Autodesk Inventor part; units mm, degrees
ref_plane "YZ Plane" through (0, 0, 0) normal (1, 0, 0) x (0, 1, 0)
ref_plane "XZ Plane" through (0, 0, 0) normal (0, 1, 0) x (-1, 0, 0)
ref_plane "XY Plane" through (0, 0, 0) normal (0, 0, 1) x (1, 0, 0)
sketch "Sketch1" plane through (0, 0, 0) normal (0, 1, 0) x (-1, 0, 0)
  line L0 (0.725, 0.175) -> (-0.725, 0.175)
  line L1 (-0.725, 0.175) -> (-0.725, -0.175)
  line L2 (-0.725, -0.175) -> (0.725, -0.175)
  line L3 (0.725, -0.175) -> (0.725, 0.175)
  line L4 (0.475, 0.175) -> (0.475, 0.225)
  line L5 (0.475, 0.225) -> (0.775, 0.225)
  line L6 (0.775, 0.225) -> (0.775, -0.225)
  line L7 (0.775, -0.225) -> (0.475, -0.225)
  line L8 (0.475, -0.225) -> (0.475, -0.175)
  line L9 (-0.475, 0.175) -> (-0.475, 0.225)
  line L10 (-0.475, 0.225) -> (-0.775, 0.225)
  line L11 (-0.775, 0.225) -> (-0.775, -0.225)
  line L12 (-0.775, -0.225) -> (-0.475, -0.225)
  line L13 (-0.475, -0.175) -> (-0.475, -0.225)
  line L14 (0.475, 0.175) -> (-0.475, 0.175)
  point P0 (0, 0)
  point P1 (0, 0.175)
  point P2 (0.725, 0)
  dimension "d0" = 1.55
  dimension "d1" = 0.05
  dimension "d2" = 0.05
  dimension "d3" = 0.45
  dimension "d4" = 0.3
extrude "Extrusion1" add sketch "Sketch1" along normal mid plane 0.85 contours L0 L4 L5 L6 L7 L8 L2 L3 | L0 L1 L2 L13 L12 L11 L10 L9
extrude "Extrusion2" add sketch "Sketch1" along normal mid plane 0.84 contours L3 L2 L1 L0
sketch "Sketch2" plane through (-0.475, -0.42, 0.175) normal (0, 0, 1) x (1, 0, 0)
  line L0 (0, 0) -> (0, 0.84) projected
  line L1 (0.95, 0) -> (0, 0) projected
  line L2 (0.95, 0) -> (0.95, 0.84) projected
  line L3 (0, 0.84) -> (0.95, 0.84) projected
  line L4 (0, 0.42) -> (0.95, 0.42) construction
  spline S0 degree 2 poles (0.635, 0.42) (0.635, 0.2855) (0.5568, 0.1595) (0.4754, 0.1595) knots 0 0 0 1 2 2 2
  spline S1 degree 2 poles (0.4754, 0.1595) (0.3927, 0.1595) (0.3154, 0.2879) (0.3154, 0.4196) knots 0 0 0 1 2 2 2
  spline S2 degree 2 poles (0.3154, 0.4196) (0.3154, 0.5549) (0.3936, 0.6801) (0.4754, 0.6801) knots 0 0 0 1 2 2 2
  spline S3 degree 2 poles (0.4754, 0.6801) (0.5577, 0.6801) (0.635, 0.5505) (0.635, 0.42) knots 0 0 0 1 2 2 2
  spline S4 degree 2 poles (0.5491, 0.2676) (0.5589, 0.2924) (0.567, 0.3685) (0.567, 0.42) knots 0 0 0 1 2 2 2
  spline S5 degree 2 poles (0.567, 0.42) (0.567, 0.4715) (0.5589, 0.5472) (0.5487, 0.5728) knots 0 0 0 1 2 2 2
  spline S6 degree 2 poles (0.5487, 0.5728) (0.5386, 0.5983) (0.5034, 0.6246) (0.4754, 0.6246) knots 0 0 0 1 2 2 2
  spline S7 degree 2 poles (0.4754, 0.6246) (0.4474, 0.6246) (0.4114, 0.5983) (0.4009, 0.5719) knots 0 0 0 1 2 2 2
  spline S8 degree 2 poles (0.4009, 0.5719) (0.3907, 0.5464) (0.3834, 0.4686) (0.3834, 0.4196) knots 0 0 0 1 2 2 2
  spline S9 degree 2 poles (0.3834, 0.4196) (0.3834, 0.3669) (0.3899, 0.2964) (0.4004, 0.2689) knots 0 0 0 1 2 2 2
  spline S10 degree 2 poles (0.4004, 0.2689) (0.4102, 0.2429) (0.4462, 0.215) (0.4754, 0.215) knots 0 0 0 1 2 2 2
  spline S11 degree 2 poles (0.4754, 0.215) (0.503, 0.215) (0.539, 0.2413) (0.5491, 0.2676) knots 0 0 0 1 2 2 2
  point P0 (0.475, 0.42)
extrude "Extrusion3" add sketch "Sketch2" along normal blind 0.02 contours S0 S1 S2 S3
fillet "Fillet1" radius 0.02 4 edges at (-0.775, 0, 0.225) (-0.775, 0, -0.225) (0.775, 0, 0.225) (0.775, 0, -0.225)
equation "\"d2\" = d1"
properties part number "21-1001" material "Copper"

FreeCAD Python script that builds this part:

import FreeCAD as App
import Part
import Sketcher
from FreeCAD import Vector


def edges_at(feature, points):
    """Names of the edges that pass closest to the given points."""
    edges = feature.Shape.Edges
    near = lambda p: min(range(len(edges)), key=lambda i: edges[i].distToShape(Part.Vertex(*p))[0])
    return sorted({f"Edge{near(p) + 1}" for p in points})


def add_polygon(sketch, points):
    """Adds a closed chain of lines whose ends are joined by coincident constraints."""
    first, n = sketch.GeometryCount, len(points)
    for a, b in zip(points, points[1:] + points[:1]):
        sketch.addGeometry(Part.LineSegment(App.Vector(*a, 0), App.Vector(*b, 0)), False)
    for i in range(n):
        sketch.addConstraint(Sketcher.Constraint("Coincident", first + i, 2, first + (i + 1) % n, 1))

doc = App.newDocument("Part")
body = doc.addObject("PartDesign::Body", "Body")
body.AllowCompound = True

# Sketch on XZ plane
sketch1 = doc.addObject("Sketcher::SketchObject", "Sketch")
body.addObject(sketch1)
sketch1.AttachmentSupport = (doc.XZ_Plane, [""])
sketch1.MapMode = "FlatFace"
add_polygon(sketch1, [(-0.47, 0.17), (-0.72, 0.17), (-0.72, -0.17), (-0.47, -0.17), (-0.47, -0.23), (-0.78, -0.23), (-0.78, 0.23), (-0.47, 0.23)])  # lines 0-7
add_polygon(sketch1, [(0.72, 0.17), (0.47, 0.17), (0.47, 0.23), (0.78, 0.23), (0.78, -0.23), (0.47, -0.23), (0.47, -0.17), (0.72, -0.17)])  # lines 8-15
sketch1.addConstraint(Sketcher.Constraint("Horizontal", 0))
sketch1.addConstraint(Sketcher.Constraint("Vertical", 1))
sketch1.addConstraint(Sketcher.Constraint("Horizontal", 2))
sketch1.addConstraint(Sketcher.Constraint("Vertical", 3))
sketch1.addConstraint(Sketcher.Constraint("Horizontal", 4))
sketch1.addConstraint(Sketcher.Constraint("Vertical", 5))
sketch1.addConstraint(Sketcher.Constraint("Horizontal", 6))
sketch1.addConstraint(Sketcher.Constraint("Vertical", 7))
sketch1.addConstraint(Sketcher.Constraint("Horizontal", 8))
sketch1.addConstraint(Sketcher.Constraint("Vertical", 9))
sketch1.addConstraint(Sketcher.Constraint("Horizontal", 10))
sketch1.addConstraint(Sketcher.Constraint("Vertical", 11))
sketch1.addConstraint(Sketcher.Constraint("Horizontal", 12))
sketch1.addConstraint(Sketcher.Constraint("Vertical", 13))
sketch1.addConstraint(Sketcher.Constraint("Horizontal", 14))
sketch1.addConstraint(Sketcher.Constraint("Vertical", 15))
sketch1.addConstraint(Sketcher.Constraint("Symmetric", 2, 2, 8, 2, -1, 1))
sketch1.addConstraint(Sketcher.Constraint("Symmetric", 4, 2, 10, 2, -1, 1))
sketch1.addConstraint(Sketcher.Constraint("Symmetric", 6, 2, 12, 2, -1, 1))
sketch1.addConstraint(Sketcher.Constraint("Symmetric", 0, 2, 14, 2, -1, 1))
sketch1.addConstraint(Sketcher.Constraint("Symmetric", 7, 2, 8, 2, -2))
sketch1.addConstraint(Sketcher.Constraint("Horizontal", 6, 2, 9, 2))
sketch1.addConstraint(Sketcher.Constraint("DistanceX", 4, 2, 4, 1, 0.3))
sketch1.addConstraint(Sketcher.Constraint("DistanceY", 3, 2, 3, 1, 0.05))
sketch1.addConstraint(Sketcher.Constraint("DistanceY", 5, 1, 5, 2, 0.45))
sketch1.addConstraint(Sketcher.Constraint("DistanceX", 4, 2, 1, 2, 0.05))
sketch1.addConstraint(Sketcher.Constraint("DistanceX", 0, 2, 8, 2, 1.2))
pad1 = doc.addObject("PartDesign::Pad", "Pad")
body.addObject(pad1)
pad1.Profile = sketch1
pad1.Length = 0.85
pad1.Midplane = True

# Sketch on XZ plane
sketch2 = doc.addObject("Sketcher::SketchObject", "Sketch001")
body.addObject(sketch2)
sketch2.AttachmentSupport = (doc.XZ_Plane, [""])
sketch2.MapMode = "FlatFace"
add_polygon(sketch2, [(-0.72, -0.17), (-0.72, 0.17), (0.72, 0.17), (0.72, -0.17)])  # lines 0-3
sketch2.addConstraint(Sketcher.Constraint("Vertical", 0))
sketch2.addConstraint(Sketcher.Constraint("Horizontal", 1))
sketch2.addConstraint(Sketcher.Constraint("Vertical", 2))
sketch2.addConstraint(Sketcher.Constraint("Horizontal", 3))
sketch2.addConstraint(Sketcher.Constraint("Symmetric", 0, 2, 2, 2, -1, 1))
sketch2.addConstraint(Sketcher.Constraint("DistanceX", 1, 1, 1, 2, 1.45))
sketch2.addConstraint(Sketcher.Constraint("DistanceY", 0, 1, 0, 2, 0.35))
pad2 = doc.addObject("PartDesign::Pad", "Pad001")
body.addObject(pad2)
pad2.Profile = sketch2
pad2.Length = 0.84
pad2.Midplane = True

# Sketch on XY plane
sketch3 = doc.addObject("Sketcher::SketchObject", "Sketch002")
body.addObject(sketch3)
sketch3.AttachmentSupport = (doc.XY_Plane, [""])
sketch3.MapMode = "FlatFace"
sketch3.AttachmentOffset = App.Placement(Vector(0, 0, 0.175), App.Rotation())
sketch3.addGeometry(Part.BSplineCurve([Vector(0.16, 0, 0), Vector(0.16, -0.1345, 0), Vector(0.0818, -0.2605, 0), Vector(0.0004, -0.2605, 0)], [3, 1, 3], [0, 1, 2], False, 2, [1, 1, 1, 1], False), False)
sketch3.addGeometry(Part.BSplineCurve([Vector(0.0004, 0.2601, 0), Vector(0.0827, 0.2601, 0), Vector(0.16, 0.1305, 0), Vector(0.16, 0, 0)], [3, 1, 3], [0, 1, 2], False, 2, [1, 1, 1, 1], False), False)
sketch3.addGeometry(Part.BSplineCurve([Vector(-0.1596, -0.0004, 0), Vector(-0.1596, 0.1349, 0), Vector(-0.0814, 0.2601, 0), Vector(0.0004, 0.2601, 0)], [3, 1, 3], [0, 1, 2], False, 2, [1, 1, 1, 1], False), False)
sketch3.addGeometry(Part.BSplineCurve([Vector(0.0004, -0.2605, 0), Vector(-0.0823, -0.2605, 0), Vector(-0.1596, -0.1321, 0), Vector(-0.1596, -0.0004, 0)], [3, 1, 3], [0, 1, 2], False, 2, [1, 1, 1, 1], False), False)
sketch3.addGeometry(Part.BSplineCurve([Vector(0.0741, -0.1524, 0), Vector(0.0839, -0.1276, 0), Vector(0.092, -0.0515, 0), Vector(0.092, 0, 0)], [3, 1, 3], [0, 1, 2], False, 2, [1, 1, 1, 1], False), False)
sketch3.addGeometry(Part.BSplineCurve([Vector(0.0004, -0.205, 0), Vector(0.028, -0.205, 0), Vector(0.064, -0.1787, 0), Vector(0.0741, -0.1524, 0)], [3, 1, 3], [0, 1, 2], False, 2, [1, 1, 1, 1], False), False)
sketch3.addGeometry(Part.BSplineCurve([Vector(-0.0746, -0.1511, 0), Vector(-0.0648, -0.1771, 0), Vector(-0.0288, -0.205, 0), Vector(0.0004, -0.205, 0)], [3, 1, 3], [0, 1, 2], False, 2, [1, 1, 1, 1], False), False)
sketch3.addGeometry(Part.BSplineCurve([Vector(-0.0916, -0.0004, 0), Vector(-0.0916, -0.0531, 0), Vector(-0.0851, -0.1236, 0), Vector(-0.0746, -0.1511, 0)], [3, 1, 3], [0, 1, 2], False, 2, [1, 1, 1, 1], False), False)
sketch3.addGeometry(Part.BSplineCurve([Vector(-0.0741, 0.1519, 0), Vector(-0.0843, 0.1264, 0), Vector(-0.0916, 0.0486, 0), Vector(-0.0916, -0.0004, 0)], [3, 1, 3], [0, 1, 2], False, 2, [1, 1, 1, 1], False), False)
sketch3.addGeometry(Part.BSplineCurve([Vector(0.0004, 0.2046, 0), Vector(-0.0276, 0.2046, 0), Vector(-0.0636, 0.1783, 0), Vector(-0.0741, 0.1519, 0)], [3, 1, 3], [0, 1, 2], False, 2, [1, 1, 1, 1], False), False)
sketch3.addGeometry(Part.BSplineCurve([Vector(0.0737, 0.1528, 0), Vector(0.0636, 0.1783, 0), Vector(0.0284, 0.2046, 0), Vector(0.0004, 0.2046, 0)], [3, 1, 3], [0, 1, 2], False, 2, [1, 1, 1, 1], False), False)
sketch3.addGeometry(Part.BSplineCurve([Vector(0.092, 0, 0), Vector(0.092, 0.0515, 0), Vector(0.0839, 0.1272, 0), Vector(0.0737, 0.1528, 0)], [3, 1, 3], [0, 1, 2], False, 2, [1, 1, 1, 1], False), False)
sketch3.addConstraint(Sketcher.Constraint("Block", 0))
sketch3.addConstraint(Sketcher.Constraint("Block", 1))
sketch3.addConstraint(Sketcher.Constraint("Block", 2))
sketch3.addConstraint(Sketcher.Constraint("Block", 3))
sketch3.addConstraint(Sketcher.Constraint("Block", 4))
sketch3.addConstraint(Sketcher.Constraint("Block", 5))
sketch3.addConstraint(Sketcher.Constraint("Block", 6))
sketch3.addConstraint(Sketcher.Constraint("Block", 7))
sketch3.addConstraint(Sketcher.Constraint("Block", 8))
sketch3.addConstraint(Sketcher.Constraint("Block", 9))
sketch3.addConstraint(Sketcher.Constraint("Block", 10))
sketch3.addConstraint(Sketcher.Constraint("Block", 11))
pad3 = doc.addObject("PartDesign::Pad", "Pad002")
body.addObject(pad3)
pad3.Profile = sketch3
pad3.Length = 0.02
doc.recompute()

fillet = doc.addObject("PartDesign::Fillet", "Fillet")
body.addObject(fillet)
fillet.Base = (pad3, edges_at(pad3, [
    (-0.775, 0, 0.225),
    (-0.775, 0, -0.225),
    (0.775, 0, 0.225),
    (0.775, 0, -0.225),
]))
fillet.Radius = 0.02

doc.recompute()
